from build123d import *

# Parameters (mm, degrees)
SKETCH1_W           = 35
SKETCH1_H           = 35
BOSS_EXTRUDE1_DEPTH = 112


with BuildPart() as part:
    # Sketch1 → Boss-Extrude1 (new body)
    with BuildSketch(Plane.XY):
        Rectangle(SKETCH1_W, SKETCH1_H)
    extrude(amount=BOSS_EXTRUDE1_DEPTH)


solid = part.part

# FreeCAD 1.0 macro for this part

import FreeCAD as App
import Part
import Sketcher

V = App.Vector
Q = App.Units.Quantity

doc = App.newDocument("Part")
body = doc.addObject("PartDesign::Body", "Body")

# Sketch on XY plane
sketch1 = body.newObject("Sketcher::SketchObject", "Sketch")
sketch1.AttachmentSupport = (doc.getObject("XY_Plane"), [""])
sketch1.MapMode = "FlatFace"
sketch1.addGeometry(Part.LineSegment(V(-17.5, 17.5, 0), V(-17.5, -17.5, 0)), False)
sketch1.addGeometry(Part.LineSegment(V(-17.5, -17.5, 0), V(17.5, -17.5, 0)), False)
sketch1.addGeometry(Part.LineSegment(V(17.5, -17.5, 0), V(17.5, 17.5, 0)), False)
sketch1.addGeometry(Part.LineSegment(V(17.5, 17.5, 0), V(-17.5, 17.5, 0)), False)
sketch1.addConstraint(Sketcher.Constraint("Coincident", 0, 2, 1, 1))
sketch1.addConstraint(Sketcher.Constraint("Coincident", 1, 2, 2, 1))
sketch1.addConstraint(Sketcher.Constraint("Coincident", 2, 2, 3, 1))
sketch1.addConstraint(Sketcher.Constraint("Coincident", 3, 2, 0, 1))
sketch1.addConstraint(Sketcher.Constraint("Vertical", 0))
sketch1.addConstraint(Sketcher.Constraint("Horizontal", 1))
sketch1.addConstraint(Sketcher.Constraint("Vertical", 2))
sketch1.addConstraint(Sketcher.Constraint("Horizontal", 3))
sketch1.addConstraint(Sketcher.Constraint("Symmetric", 0, 2, 2, 2, -1, 1))
sketch1.addConstraint(Sketcher.Constraint("Equal", 3, 0))
sketch1.addConstraint(Sketcher.Constraint("DistanceX", 1, 1, 1, 2, Q("35 mm")))
pad1 = body.newObject("PartDesign::Pad", "Pad")
pad1.Profile = sketch1
pad1.Length = 112

doc.recompute()
